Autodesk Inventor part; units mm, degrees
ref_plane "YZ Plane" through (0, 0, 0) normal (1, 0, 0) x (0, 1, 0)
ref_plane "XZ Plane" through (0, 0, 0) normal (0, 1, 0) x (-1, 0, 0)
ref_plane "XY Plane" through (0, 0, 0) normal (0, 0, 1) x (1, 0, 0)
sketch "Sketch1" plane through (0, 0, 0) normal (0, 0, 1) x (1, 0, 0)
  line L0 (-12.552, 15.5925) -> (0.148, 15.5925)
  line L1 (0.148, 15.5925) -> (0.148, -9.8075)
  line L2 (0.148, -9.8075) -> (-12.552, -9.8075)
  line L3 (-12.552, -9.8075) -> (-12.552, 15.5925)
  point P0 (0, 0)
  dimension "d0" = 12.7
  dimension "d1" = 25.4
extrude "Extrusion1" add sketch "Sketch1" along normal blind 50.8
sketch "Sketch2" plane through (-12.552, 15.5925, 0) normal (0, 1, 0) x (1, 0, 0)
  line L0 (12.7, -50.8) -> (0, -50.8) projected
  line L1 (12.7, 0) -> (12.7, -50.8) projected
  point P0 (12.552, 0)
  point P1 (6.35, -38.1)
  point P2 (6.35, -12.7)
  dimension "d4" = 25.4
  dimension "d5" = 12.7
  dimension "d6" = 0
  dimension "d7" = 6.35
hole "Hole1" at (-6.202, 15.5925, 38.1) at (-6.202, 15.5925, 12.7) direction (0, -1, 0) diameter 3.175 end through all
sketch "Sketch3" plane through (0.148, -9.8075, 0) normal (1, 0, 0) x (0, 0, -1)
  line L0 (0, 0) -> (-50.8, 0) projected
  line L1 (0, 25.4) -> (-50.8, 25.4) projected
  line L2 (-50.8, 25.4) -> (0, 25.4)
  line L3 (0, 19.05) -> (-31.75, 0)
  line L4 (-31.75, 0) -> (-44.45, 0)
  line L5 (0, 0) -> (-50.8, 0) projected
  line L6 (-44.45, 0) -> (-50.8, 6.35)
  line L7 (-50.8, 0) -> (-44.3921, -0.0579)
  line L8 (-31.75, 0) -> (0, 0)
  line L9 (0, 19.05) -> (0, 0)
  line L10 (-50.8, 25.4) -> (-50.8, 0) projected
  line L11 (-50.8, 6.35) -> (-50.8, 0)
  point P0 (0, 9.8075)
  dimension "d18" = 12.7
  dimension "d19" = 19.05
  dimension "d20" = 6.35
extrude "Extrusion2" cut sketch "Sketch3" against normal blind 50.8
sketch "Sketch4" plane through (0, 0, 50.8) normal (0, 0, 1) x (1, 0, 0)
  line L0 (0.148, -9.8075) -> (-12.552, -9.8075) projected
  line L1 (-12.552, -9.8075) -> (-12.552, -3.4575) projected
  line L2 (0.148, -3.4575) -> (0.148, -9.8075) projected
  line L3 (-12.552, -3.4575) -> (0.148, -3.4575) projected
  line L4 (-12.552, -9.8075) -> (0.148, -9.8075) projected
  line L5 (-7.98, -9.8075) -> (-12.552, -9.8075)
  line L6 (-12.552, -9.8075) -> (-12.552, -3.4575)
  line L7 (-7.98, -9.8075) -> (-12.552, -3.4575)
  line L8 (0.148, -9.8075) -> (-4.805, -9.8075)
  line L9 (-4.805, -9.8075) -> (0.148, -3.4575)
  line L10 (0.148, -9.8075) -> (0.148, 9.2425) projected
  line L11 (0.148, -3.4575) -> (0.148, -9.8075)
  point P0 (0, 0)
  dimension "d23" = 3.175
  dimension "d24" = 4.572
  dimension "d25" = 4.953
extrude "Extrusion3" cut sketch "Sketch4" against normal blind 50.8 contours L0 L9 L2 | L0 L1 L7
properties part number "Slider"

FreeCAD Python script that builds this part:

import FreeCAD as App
import Part
import Sketcher
Q = App.Units.Quantity


def add_polygon(sketch, points):
    """Adds a closed chain of lines whose ends are joined by coincident constraints."""
    first, n = sketch.GeometryCount, len(points)
    for a, b in zip(points, points[1:] + points[:1]):
        sketch.addGeometry(Part.LineSegment(App.Vector(*a, 0), App.Vector(*b, 0)), False)
    for i in range(n):
        sketch.addConstraint(Sketcher.Constraint("Coincident", first + i, 2, first + (i + 1) % n, 1))

doc = App.newDocument("Part")
body = doc.addObject("PartDesign::Body", "Body")

# Sketch on XY plane
sketch1 = body.newObject("Sketcher::SketchObject", "Sketch")
sketch1.AttachmentSupport = (doc.getObject("XY_Plane"), [""])
sketch1.MapMode = "FlatFace"
add_polygon(sketch1, [(0.148, 15.5925), (-12.552, 15.5925), (-12.552, -9.8075), (0.148, -9.8075)])  # lines 0-3
sketch1.addConstraint(Sketcher.Constraint("Horizontal", 0))
sketch1.addConstraint(Sketcher.Constraint("Vertical", 1))
sketch1.addConstraint(Sketcher.Constraint("Horizontal", 2))
sketch1.addConstraint(Sketcher.Constraint("Vertical", 3))
sketch1.addConstraint(Sketcher.Constraint("DistanceY", 1, 2, 1, 1, Q("1 in")))
sketch1.addConstraint(Sketcher.Constraint("DistanceX", 0, 2, 0, 1, Q("0.5 in")))
sketch1.addConstraint(Sketcher.Constraint("DistanceX", 0, 2, -1, 1, Q("12.552 mm")))
sketch1.addConstraint(Sketcher.Constraint("DistanceY", -1, 1, 0, 2, Q("15.5925 mm")))
pad1 = body.newObject("PartDesign::Pad", "Pad")
pad1.Profile = sketch1
pad1.Length = Q("2 in")

# Sketch on XZ plane
sketch2 = body.newObject("Sketcher::SketchObject", "Sketch001")
sketch2.AttachmentSupport = (doc.getObject("XZ_Plane"), [""])
sketch2.MapMode = "FlatFace"
sketch2.AttachmentOffset = App.Placement(App.Vector(0, 0, -15.5925), App.Rotation())
sketch2.addGeometry(Part.Circle(App.Vector(-6.202, 38.1, 0), App.Vector(0, 0, 1), 1.5875), False)
sketch2.addGeometry(Part.Circle(App.Vector(-6.202, 12.7, 0), App.Vector(0, 0, 1), 1.5875), False)
sketch2.addConstraint(Sketcher.Constraint("Equal", 0, 1))
sketch2.addConstraint(Sketcher.Constraint("Vertical", 0, 3, 1, 3))
sketch2.addConstraint(Sketcher.Constraint("Diameter", 0, Q("0.125 in")))
sketch2.addConstraint(Sketcher.Constraint("DistanceY", 1, 3, 0, 3, Q("1 in")))
sketch2.addConstraint(Sketcher.Constraint("DistanceY", -1, 1, 0, 3, Q("1.5 in")))
sketch2.addConstraint(Sketcher.Constraint("DistanceX", 0, 3, -1, 1, Q("6.202 mm")))
doc.recompute()
hole = body.newObject("PartDesign::Hole", "Hole")
hole.Profile = sketch2
hole.ThreadType = "None"
hole.Diameter = Q("0.125 in")
hole.DepthType = "ThroughAll"
hole.Reversed = True

# Sketch on YZ plane
sketch3 = body.newObject("Sketcher::SketchObject", "Sketch002")
sketch3.AttachmentSupport = (doc.getObject("YZ_Plane"), [""])
sketch3.MapMode = "FlatFace"
sketch3.AttachmentOffset = App.Placement(App.Vector(0, 0, 0.148), App.Rotation())
add_polygon(sketch3, [(-9.8075, 50.8), (-9.8075, 44.45), (-3.4575, 50.8)])  # lines 0-2
add_polygon(sketch3, [(-9.8075, 31.75), (-9.8075, 0), (9.2425, 0)])  # lines 3-5
sketch3.addConstraint(Sketcher.Constraint("Vertical", 0))
sketch3.addConstraint(Sketcher.Constraint("Horizontal", 2))
sketch3.addConstraint(Sketcher.Constraint("Vertical", 3))
sketch3.addConstraint(Sketcher.Constraint("Horizontal", 4))
sketch3.addConstraint(Sketcher.Constraint("PointOnObject", 3, 2, -1))
sketch3.addConstraint(Sketcher.Constraint("Vertical", 2, 2, 3, 2))
sketch3.addConstraint(Sketcher.Constraint("Equal", 2, 0))
sketch3.addConstraint(Sketcher.Constraint("DistanceX", 2, 2, 2, 1, Q("0.25 in")))
sketch3.addConstraint(Sketcher.Constraint("DistanceX", 4, 1, 4, 2, Q("0.75 in")))
sketch3.addConstraint(Sketcher.Constraint("DistanceY", 5, 2, 0, 2, Q("0.5 in")))
sketch3.addConstraint(Sketcher.Constraint("DistanceY", -1, 1, 1, 2, Q("2 in")))
sketch3.addConstraint(Sketcher.Constraint("DistanceX", 0, 2, -1, 1, Q("9.8075 mm")))
pocket1 = body.newObject("PartDesign::Pocket", "Pocket")
pocket1.Profile = sketch3
pocket1.Length = Q("2 in")

# Sketch on XY plane
sketch4 = body.newObject("Sketcher::SketchObject", "Sketch003")
sketch4.AttachmentSupport = (doc.getObject("XY_Plane"), [""])
sketch4.MapMode = "FlatFace"
sketch4.AttachmentOffset = App.Placement(App.Vector(0, 0, 2 * 25.4), App.Rotation())
add_polygon(sketch4, [(-4.805, -9.8075), (0.148, -9.8075), (0.148, -3.4575)])  # lines 0-2
add_polygon(sketch4, [(-12.552, -9.8075), (-7.98, -9.8075), (-12.552, -3.4575)])  # lines 3-5
sketch4.addConstraint(Sketcher.Constraint("Horizontal", 0))
sketch4.addConstraint(Sketcher.Constraint("Vertical", 1))
sketch4.addConstraint(Sketcher.Constraint("Horizontal", 3))
sketch4.addConstraint(Sketcher.Constraint("Vertical", 5))
sketch4.addConstraint(Sketcher.Constraint("Horizontal", 2, 2, 3, 2))
sketch4.addConstraint(Sketcher.Constraint("Horizontal", 1, 2, 4, 2))
sketch4.addConstraint(Sketcher.Constraint("DistanceX", 3, 1, 3, 2, Q("0.18 in")))
sketch4.addConstraint(Sketcher.Constraint("DistanceX", 0, 1, 0, 2, Q("0.195 in")))
sketch4.addConstraint(Sketcher.Constraint("DistanceX", 3, 2, 2, 2, Q("0.125 in")))
sketch4.addConstraint(Sketcher.Constraint("DistanceY", 1, 1, 1, 2, Q("0.25 in")))
sketch4.addConstraint(Sketcher.Constraint("DistanceX", -1, 1, 0, 2, Q("0.148 mm")))
sketch4.addConstraint(Sketcher.Constraint("DistanceY", 0, 2, -1, 1, Q("9.8075 mm")))
pocket2 = body.newObject("PartDesign::Pocket", "Pocket001")
pocket2.Profile = sketch4
pocket2.Length = Q("2 in")

doc.recompute()
